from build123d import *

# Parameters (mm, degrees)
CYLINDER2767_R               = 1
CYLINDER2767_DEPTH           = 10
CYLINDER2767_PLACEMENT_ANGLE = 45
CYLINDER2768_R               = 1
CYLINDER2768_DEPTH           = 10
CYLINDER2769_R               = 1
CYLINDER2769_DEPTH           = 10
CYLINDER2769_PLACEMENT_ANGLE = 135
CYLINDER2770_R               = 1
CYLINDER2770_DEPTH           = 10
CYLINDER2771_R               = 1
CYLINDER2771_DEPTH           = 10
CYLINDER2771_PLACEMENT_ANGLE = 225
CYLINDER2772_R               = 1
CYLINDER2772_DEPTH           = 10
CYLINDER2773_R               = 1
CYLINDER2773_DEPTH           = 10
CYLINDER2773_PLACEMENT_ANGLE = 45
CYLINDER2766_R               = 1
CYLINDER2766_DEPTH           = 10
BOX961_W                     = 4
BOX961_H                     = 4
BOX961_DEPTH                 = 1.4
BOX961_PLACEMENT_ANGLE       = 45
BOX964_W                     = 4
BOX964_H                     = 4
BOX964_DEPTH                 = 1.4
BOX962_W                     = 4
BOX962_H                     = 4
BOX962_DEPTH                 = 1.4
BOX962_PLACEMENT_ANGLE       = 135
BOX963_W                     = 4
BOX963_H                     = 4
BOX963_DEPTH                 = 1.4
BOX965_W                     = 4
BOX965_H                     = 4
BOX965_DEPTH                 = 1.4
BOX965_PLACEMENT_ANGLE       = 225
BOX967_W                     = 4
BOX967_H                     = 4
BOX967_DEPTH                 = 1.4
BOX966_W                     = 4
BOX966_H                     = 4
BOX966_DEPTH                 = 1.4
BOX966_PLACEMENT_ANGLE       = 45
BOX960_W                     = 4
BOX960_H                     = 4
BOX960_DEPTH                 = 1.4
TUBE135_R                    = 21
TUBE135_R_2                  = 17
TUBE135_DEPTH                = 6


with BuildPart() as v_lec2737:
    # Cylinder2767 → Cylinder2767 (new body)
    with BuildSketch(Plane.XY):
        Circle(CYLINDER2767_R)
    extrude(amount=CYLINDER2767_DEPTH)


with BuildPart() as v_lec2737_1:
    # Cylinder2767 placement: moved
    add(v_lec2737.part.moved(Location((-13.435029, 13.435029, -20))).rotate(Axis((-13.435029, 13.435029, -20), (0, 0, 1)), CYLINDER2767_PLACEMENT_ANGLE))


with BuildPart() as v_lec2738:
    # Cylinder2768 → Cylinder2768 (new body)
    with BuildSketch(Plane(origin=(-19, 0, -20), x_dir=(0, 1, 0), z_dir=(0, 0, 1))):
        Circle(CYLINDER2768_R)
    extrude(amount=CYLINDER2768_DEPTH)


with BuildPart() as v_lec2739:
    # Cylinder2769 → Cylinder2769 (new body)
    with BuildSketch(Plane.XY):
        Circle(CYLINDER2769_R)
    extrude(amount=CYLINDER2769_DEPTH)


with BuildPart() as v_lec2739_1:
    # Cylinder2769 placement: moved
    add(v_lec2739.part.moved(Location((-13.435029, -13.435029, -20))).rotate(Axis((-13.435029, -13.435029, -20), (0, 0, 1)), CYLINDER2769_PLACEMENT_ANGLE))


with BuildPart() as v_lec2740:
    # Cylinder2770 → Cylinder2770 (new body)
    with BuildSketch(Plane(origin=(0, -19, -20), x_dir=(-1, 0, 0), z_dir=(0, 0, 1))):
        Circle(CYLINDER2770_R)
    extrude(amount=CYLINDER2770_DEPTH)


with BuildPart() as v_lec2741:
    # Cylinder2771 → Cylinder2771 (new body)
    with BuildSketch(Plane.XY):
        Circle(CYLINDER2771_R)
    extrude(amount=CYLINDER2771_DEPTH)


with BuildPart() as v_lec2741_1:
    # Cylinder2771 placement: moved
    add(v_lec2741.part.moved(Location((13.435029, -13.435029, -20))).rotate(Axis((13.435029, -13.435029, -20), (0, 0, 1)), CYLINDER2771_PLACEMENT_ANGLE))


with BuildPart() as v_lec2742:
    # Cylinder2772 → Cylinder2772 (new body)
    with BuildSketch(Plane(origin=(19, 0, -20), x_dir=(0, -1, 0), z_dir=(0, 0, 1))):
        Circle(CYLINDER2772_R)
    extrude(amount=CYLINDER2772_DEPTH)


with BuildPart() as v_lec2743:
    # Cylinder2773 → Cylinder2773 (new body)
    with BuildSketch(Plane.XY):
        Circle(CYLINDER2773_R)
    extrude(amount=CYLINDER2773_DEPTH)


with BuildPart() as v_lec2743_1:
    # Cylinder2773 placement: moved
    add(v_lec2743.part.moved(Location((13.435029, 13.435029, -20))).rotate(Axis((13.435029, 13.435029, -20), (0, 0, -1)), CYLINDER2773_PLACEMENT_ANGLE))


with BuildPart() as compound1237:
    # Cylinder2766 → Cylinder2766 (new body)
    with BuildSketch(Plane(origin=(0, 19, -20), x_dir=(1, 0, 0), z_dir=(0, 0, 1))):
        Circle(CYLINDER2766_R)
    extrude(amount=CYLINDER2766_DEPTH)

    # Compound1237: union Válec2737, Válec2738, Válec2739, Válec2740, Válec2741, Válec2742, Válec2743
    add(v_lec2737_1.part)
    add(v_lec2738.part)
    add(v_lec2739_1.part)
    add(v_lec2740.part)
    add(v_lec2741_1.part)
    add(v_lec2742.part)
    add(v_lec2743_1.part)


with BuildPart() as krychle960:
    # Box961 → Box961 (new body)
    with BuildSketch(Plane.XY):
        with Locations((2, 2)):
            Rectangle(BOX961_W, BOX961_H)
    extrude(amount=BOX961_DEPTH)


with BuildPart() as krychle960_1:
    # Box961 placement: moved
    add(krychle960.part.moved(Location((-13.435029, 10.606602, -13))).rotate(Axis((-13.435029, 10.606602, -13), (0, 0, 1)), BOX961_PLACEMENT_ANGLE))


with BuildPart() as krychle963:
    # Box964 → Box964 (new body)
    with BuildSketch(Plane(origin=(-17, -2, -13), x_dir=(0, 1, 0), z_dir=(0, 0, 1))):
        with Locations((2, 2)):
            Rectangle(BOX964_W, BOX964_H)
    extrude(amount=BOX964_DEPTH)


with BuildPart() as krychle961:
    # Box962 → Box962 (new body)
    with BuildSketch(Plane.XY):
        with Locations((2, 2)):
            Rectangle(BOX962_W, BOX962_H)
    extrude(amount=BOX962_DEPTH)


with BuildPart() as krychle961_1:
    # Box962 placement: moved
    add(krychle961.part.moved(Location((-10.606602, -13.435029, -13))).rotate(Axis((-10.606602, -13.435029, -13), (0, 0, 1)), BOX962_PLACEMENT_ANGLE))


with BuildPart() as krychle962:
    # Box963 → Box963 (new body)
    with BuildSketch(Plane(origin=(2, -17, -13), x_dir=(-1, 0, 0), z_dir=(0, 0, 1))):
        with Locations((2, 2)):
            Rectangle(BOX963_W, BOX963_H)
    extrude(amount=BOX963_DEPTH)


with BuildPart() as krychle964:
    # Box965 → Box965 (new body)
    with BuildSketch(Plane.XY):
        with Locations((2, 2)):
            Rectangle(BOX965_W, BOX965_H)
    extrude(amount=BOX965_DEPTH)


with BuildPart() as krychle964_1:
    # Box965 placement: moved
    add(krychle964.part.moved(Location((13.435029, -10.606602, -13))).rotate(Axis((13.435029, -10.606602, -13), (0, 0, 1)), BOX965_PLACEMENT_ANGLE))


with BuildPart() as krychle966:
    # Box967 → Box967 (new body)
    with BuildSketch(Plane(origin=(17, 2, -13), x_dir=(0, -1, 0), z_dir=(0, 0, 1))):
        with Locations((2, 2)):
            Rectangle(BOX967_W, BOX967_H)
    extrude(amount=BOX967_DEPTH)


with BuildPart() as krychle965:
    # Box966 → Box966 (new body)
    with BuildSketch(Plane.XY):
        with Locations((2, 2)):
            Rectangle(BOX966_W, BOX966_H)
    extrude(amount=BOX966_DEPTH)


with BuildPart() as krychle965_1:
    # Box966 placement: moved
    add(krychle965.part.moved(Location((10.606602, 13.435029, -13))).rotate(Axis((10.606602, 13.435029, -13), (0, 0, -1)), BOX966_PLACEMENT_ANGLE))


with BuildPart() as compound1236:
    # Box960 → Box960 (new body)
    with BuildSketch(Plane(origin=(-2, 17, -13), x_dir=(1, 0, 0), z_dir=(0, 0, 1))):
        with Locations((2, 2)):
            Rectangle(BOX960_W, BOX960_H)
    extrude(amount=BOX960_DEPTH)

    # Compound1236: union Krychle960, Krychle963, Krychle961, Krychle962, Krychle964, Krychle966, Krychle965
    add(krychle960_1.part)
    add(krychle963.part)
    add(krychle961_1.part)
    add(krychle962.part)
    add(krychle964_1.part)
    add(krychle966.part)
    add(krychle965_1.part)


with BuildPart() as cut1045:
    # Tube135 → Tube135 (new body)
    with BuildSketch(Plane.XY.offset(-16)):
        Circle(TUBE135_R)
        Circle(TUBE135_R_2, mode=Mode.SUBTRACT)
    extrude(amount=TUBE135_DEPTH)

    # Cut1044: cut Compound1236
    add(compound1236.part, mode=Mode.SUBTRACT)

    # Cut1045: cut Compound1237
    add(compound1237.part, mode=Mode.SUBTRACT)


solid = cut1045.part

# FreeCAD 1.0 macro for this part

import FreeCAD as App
import Part
import Sketcher

V = App.Vector
Q = App.Units.Quantity

doc = App.newDocument("Part")
body = doc.addObject("PartDesign::Body", "Body")

# Sketch on XY plane
sketch1 = body.newObject("Sketcher::SketchObject", "Sketch")
sketch1.AttachmentSupport = (doc.getObject("XY_Plane"), [""])
sketch1.MapMode = "FlatFace"
sketch1.addGeometry(Part.Circle(V(0, 0, 0), V(0, 0, 1), 1), False)
sketch1.addConstraint(Sketcher.Constraint("Coincident", 0, 3, -1, 1))
sketch1.addConstraint(Sketcher.Constraint("Diameter", 0, Q("2 mm")))
pad1 = body.newObject("PartDesign::Pad", "Pad")
pad1.Profile = sketch1
pad1.Length = 10
body2 = doc.addObject("PartDesign::Body", "Body001")
doc.recompute()

body.Placement = App.Placement(V(-13.435029, 13.435029, -20), App.Rotation(V(0, 0, 1), 45))
boolean = body2.newObject("PartDesign::Boolean", "Boolean")
boolean.Type = "Fuse"
boolean.addObjects([body])
body3 = doc.addObject("PartDesign::Body", "Body002")

# Sketch on XY plane
sketch2 = body3.newObject("Sketcher::SketchObject", "Sketch001")
sketch2.AttachmentSupport = (doc.getObject("XY_Plane002"), [""])
sketch2.MapMode = "FlatFace"
sketch2.AttachmentOffset = App.Placement(V(0, 0, -20), App.Rotation())
sketch2.addGeometry(Part.Circle(V(-19, 0, 0), V(0, 0, 1), 1), False)
sketch2.addConstraint(Sketcher.Constraint("PointOnObject", 0, 3, -1))
sketch2.addConstraint(Sketcher.Constraint("Diameter", 0, Q("2 mm")))
sketch2.addConstraint(Sketcher.Constraint("DistanceX", 0, 3, -1, 1, Q("19 mm")))
pad2 = body3.newObject("PartDesign::Pad", "Pad001")
pad2.Profile = sketch2
pad2.Length = 10
body4 = doc.addObject("PartDesign::Body", "Body003")

# Sketch on XY plane
sketch3 = body4.newObject("Sketcher::SketchObject", "Sketch002")
sketch3.AttachmentSupport = (doc.getObject("XY_Plane003"), [""])
sketch3.MapMode = "FlatFace"
sketch3.addGeometry(Part.Circle(V(0, 0, 0), V(0, 0, 1), 1), False)
sketch3.addConstraint(Sketcher.Constraint("Coincident", 0, 3, -1, 1))
sketch3.addConstraint(Sketcher.Constraint("Diameter", 0, Q("2 mm")))
pad3 = body4.newObject("PartDesign::Pad", "Pad002")
pad3.Profile = sketch3
pad3.Length = 10
body5 = doc.addObject("PartDesign::Body", "Body004")
doc.recompute()

body4.Placement = App.Placement(V(-13.435029, -13.435029, -20), App.Rotation(V(0, 0, 1), 135))
boolean2 = body5.newObject("PartDesign::Boolean", "Boolean001")
boolean2.Type = "Fuse"
boolean2.addObjects([body4])
body6 = doc.addObject("PartDesign::Body", "Body005")

# Sketch on XY plane
sketch4 = body6.newObject("Sketcher::SketchObject", "Sketch003")
sketch4.AttachmentSupport = (doc.getObject("XY_Plane005"), [""])
sketch4.MapMode = "FlatFace"
sketch4.AttachmentOffset = App.Placement(V(0, 0, -20), App.Rotation())
sketch4.addGeometry(Part.Circle(V(0, -19, 0), V(0, 0, 1), 1), False)
sketch4.addConstraint(Sketcher.Constraint("PointOnObject", 0, 3, -2))
sketch4.addConstraint(Sketcher.Constraint("Diameter", 0, Q("2 mm")))
sketch4.addConstraint(Sketcher.Constraint("DistanceY", 0, 3, -1, 1, Q("19 mm")))
pad4 = body6.newObject("PartDesign::Pad", "Pad003")
pad4.Profile = sketch4
pad4.Length = 10
body7 = doc.addObject("PartDesign::Body", "Body006")

# Sketch on XY plane
sketch5 = body7.newObject("Sketcher::SketchObject", "Sketch004")
sketch5.AttachmentSupport = (doc.getObject("XY_Plane006"), [""])
sketch5.MapMode = "FlatFace"
sketch5.addGeometry(Part.Circle(V(0, 0, 0), V(0, 0, 1), 1), False)
sketch5.addConstraint(Sketcher.Constraint("Coincident", 0, 3, -1, 1))
sketch5.addConstraint(Sketcher.Constraint("Diameter", 0, Q("2 mm")))
pad5 = body7.newObject("PartDesign::Pad", "Pad004")
pad5.Profile = sketch5
pad5.Length = 10
body8 = doc.addObject("PartDesign::Body", "Body007")
doc.recompute()

body7.Placement = App.Placement(V(13.435029, -13.435029, -20), App.Rotation(V(0, 0, 1), 225))
boolean3 = body8.newObject("PartDesign::Boolean", "Boolean002")
boolean3.Type = "Fuse"
boolean3.addObjects([body7])
body9 = doc.addObject("PartDesign::Body", "Body008")

# Sketch on XY plane
sketch6 = body9.newObject("Sketcher::SketchObject", "Sketch005")
sketch6.AttachmentSupport = (doc.getObject("XY_Plane008"), [""])
sketch6.MapMode = "FlatFace"
sketch6.AttachmentOffset = App.Placement(V(0, 0, -20), App.Rotation())
sketch6.addGeometry(Part.Circle(V(19, 0, 0), V(0, 0, 1), 1), False)
sketch6.addConstraint(Sketcher.Constraint("PointOnObject", 0, 3, -1))
sketch6.addConstraint(Sketcher.Constraint("Diameter", 0, Q("2 mm")))
sketch6.addConstraint(Sketcher.Constraint("DistanceX", -1, 1, 0, 3, Q("19 mm")))
pad6 = body9.newObject("PartDesign::Pad", "Pad005")
pad6.Profile = sketch6
pad6.Length = 10
body10 = doc.addObject("PartDesign::Body", "Body009")

# Sketch on XY plane
sketch7 = body10.newObject("Sketcher::SketchObject", "Sketch006")
sketch7.AttachmentSupport = (doc.getObject("XY_Plane009"), [""])
sketch7.MapMode = "FlatFace"
sketch7.addGeometry(Part.Circle(V(0, 0, 0), V(0, 0, 1), 1), False)
sketch7.addConstraint(Sketcher.Constraint("Coincident", 0, 3, -1, 1))
sketch7.addConstraint(Sketcher.Constraint("Diameter", 0, Q("2 mm")))
pad7 = body10.newObject("PartDesign::Pad", "Pad006")
pad7.Profile = sketch7
pad7.Length = 10
body11 = doc.addObject("PartDesign::Body", "Body010")
doc.recompute()

body10.Placement = App.Placement(V(13.435029, 13.435029, -20), App.Rotation(V(0, 0, -1), 45))
boolean4 = body11.newObject("PartDesign::Boolean", "Boolean003")
boolean4.Type = "Fuse"
boolean4.addObjects([body10])
body12 = doc.addObject("PartDesign::Body", "Body011")
body12.AllowCompound = True

# Sketch on XY plane
sketch8 = body12.newObject("Sketcher::SketchObject", "Sketch007")
sketch8.AttachmentSupport = (doc.getObject("XY_Plane011"), [""])
sketch8.MapMode = "FlatFace"
sketch8.AttachmentOffset = App.Placement(V(0, 0, -20), App.Rotation())
sketch8.addGeometry(Part.Circle(V(0, 19, 0), V(0, 0, 1), 1), False)
sketch8.addConstraint(Sketcher.Constraint("PointOnObject", 0, 3, -2))
sketch8.addConstraint(Sketcher.Constraint("Diameter", 0, Q("2 mm")))
sketch8.addConstraint(Sketcher.Constraint("DistanceY", -1, 1, 0, 3, Q("19 mm")))
pad8 = body12.newObject("PartDesign::Pad", "Pad007")
pad8.Profile = sketch8
pad8.Length = 10
doc.recompute()

boolean5 = body12.newObject("PartDesign::Boolean", "Boolean004")
boolean5.Type = "Fuse"
boolean5.addObjects([body2])
doc.recompute()

boolean6 = body12.newObject("PartDesign::Boolean", "Boolean005")
boolean6.Type = "Fuse"
boolean6.addObjects([body3])
doc.recompute()

boolean7 = body12.newObject("PartDesign::Boolean", "Boolean006")
boolean7.Type = "Fuse"
boolean7.addObjects([body5])
doc.recompute()

boolean8 = body12.newObject("PartDesign::Boolean", "Boolean007")
boolean8.Type = "Fuse"
boolean8.addObjects([body6])
doc.recompute()

boolean9 = body12.newObject("PartDesign::Boolean", "Boolean008")
boolean9.Type = "Fuse"
boolean9.addObjects([body8])
doc.recompute()

boolean10 = body12.newObject("PartDesign::Boolean", "Boolean009")
boolean10.Type = "Fuse"
boolean10.addObjects([body9])
doc.recompute()

boolean11 = body12.newObject("PartDesign::Boolean", "Boolean010")
boolean11.Type = "Fuse"
boolean11.addObjects([body11])
body13 = doc.addObject("PartDesign::Body", "Body012")

# Sketch on XY plane
sketch9 = body13.newObject("Sketcher::SketchObject", "Sketch008")
sketch9.AttachmentSupport = (doc.getObject("XY_Plane012"), [""])
sketch9.MapMode = "FlatFace"
sketch9.addGeometry(Part.LineSegment(V(0, 4, 0), V(0, 0, 0)), False)
sketch9.addGeometry(Part.LineSegment(V(0, 0, 0), V(4, 0, 0)), False)
sketch9.addGeometry(Part.LineSegment(V(4, 0, 0), V(4, 4, 0)), False)
sketch9.addGeometry(Part.LineSegment(V(4, 4, 0), V(0, 4, 0)), False)
sketch9.addConstraint(Sketcher.Constraint("Coincident", 0, 2, 1, 1))
sketch9.addConstraint(Sketcher.Constraint("Coincident", 1, 2, 2, 1))
sketch9.addConstraint(Sketcher.Constraint("Coincident", 2, 2, 3, 1))
sketch9.addConstraint(Sketcher.Constraint("Coincident", 3, 2, 0, 1))
sketch9.addConstraint(Sketcher.Constraint("Vertical", 0))
sketch9.addConstraint(Sketcher.Constraint("Horizontal", 1))
sketch9.addConstraint(Sketcher.Constraint("Vertical", 2))
sketch9.addConstraint(Sketcher.Constraint("Horizontal", 3))
sketch9.addConstraint(Sketcher.Constraint("Coincident", 0, 2, -1, 1))
sketch9.addConstraint(Sketcher.Constraint("Equal", 3, 0))
sketch9.addConstraint(Sketcher.Constraint("DistanceX", 1, 1, 1, 2, Q("4 mm")))
pad9 = body13.newObject("PartDesign::Pad", "Pad008")
pad9.Profile = sketch9
pad9.Length = 1.4
body14 = doc.addObject("PartDesign::Body", "Body013")
doc.recompute()

body13.Placement = App.Placement(V(-13.435029, 10.606602, -13), App.Rotation(V(0, 0, 1), 45))
boolean12 = body14.newObject("PartDesign::Boolean", "Boolean011")
boolean12.Type = "Fuse"
boolean12.addObjects([body13])
body15 = doc.addObject("PartDesign::Body", "Body014")

# Sketch on XY plane
sketch10 = body15.newObject("Sketcher::SketchObject", "Sketch009")
sketch10.AttachmentSupport = (doc.getObject("XY_Plane014"), [""])
sketch10.MapMode = "FlatFace"
sketch10.AttachmentOffset = App.Placement(V(0, 0, -13), App.Rotation())
sketch10.addGeometry(Part.LineSegment(V(-21, -2, 0), V(-17, -2, 0)), False)
sketch10.addGeometry(Part.LineSegment(V(-17, -2, 0), V(-17, 2, 0)), False)
sketch10.addGeometry(Part.LineSegment(V(-17, 2, 0), V(-21, 2, 0)), False)
sketch10.addGeometry(Part.LineSegment(V(-21, 2, 0), V(-21, -2, 0)), False)
sketch10.addConstraint(Sketcher.Constraint("Coincident", 0, 2, 1, 1))
sketch10.addConstraint(Sketcher.Constraint("Coincident", 1, 2, 2, 1))
sketch10.addConstraint(Sketcher.Constraint("Coincident", 2, 2, 3, 1))
sketch10.addConstraint(Sketcher.Constraint("Coincident", 3, 2, 0, 1))
sketch10.addConstraint(Sketcher.Constraint("Horizontal", 0))
sketch10.addConstraint(Sketcher.Constraint("Vertical", 1))
sketch10.addConstraint(Sketcher.Constraint("Horizontal", 2))
sketch10.addConstraint(Sketcher.Constraint("Vertical", 3))
sketch10.addConstraint(Sketcher.Constraint("Equal", 2, 1))
sketch10.addConstraint(Sketcher.Constraint("DistanceX", 0, 1, 0, 2, Q("4 mm")))
sketch10.addConstraint(Sketcher.Constraint("DistanceX", 0, 2, -1, 1, Q("17 mm")))
sketch10.addConstraint(Sketcher.Constraint("DistanceY", 0, 2, -1, 1, Q("2 mm")))
pad10 = body15.newObject("PartDesign::Pad", "Pad009")
pad10.Profile = sketch10
pad10.Length = 1.4
body16 = doc.addObject("PartDesign::Body", "Body015")

# Sketch on XY plane
sketch11 = body16.newObject("Sketcher::SketchObject", "Sketch010")
sketch11.AttachmentSupport = (doc.getObject("XY_Plane015"), [""])
sketch11.MapMode = "FlatFace"
sketch11.addGeometry(Part.LineSegment(V(0, 4, 0), V(0, 0, 0)), False)
sketch11.addGeometry(Part.LineSegment(V(0, 0, 0), V(4, 0, 0)), False)
sketch11.addGeometry(Part.LineSegment(V(4, 0, 0), V(4, 4, 0)), False)
sketch11.addGeometry(Part.LineSegment(V(4, 4, 0), V(0, 4, 0)), False)
sketch11.addConstraint(Sketcher.Constraint("Coincident", 0, 2, 1, 1))
sketch11.addConstraint(Sketcher.Constraint("Coincident", 1, 2, 2, 1))
sketch11.addConstraint(Sketcher.Constraint("Coincident", 2, 2, 3, 1))
sketch11.addConstraint(Sketcher.Constraint("Coincident", 3, 2, 0, 1))
sketch11.addConstraint(Sketcher.Constraint("Vertical", 0))
sketch11.addConstraint(Sketcher.Constraint("Horizontal", 1))
sketch11.addConstraint(Sketcher.Constraint("Vertical", 2))
sketch11.addConstraint(Sketcher.Constraint("Horizontal", 3))
sketch11.addConstraint(Sketcher.Constraint("Coincident", 0, 2, -1, 1))
sketch11.addConstraint(Sketcher.Constraint("Equal", 3, 0))
sketch11.addConstraint(Sketcher.Constraint("DistanceX", 1, 1, 1, 2, Q("4 mm")))
pad11 = body16.newObject("PartDesign::Pad", "Pad010")
pad11.Profile = sketch11
pad11.Length = 1.4
body17 = doc.addObject("PartDesign::Body", "Body016")
doc.recompute()

body16.Placement = App.Placement(V(-10.606602, -13.435029, -13), App.Rotation(V(0, 0, 1), 135))
boolean13 = body17.newObject("PartDesign::Boolean", "Boolean012")
boolean13.Type = "Fuse"
boolean13.addObjects([body16])
body18 = doc.addObject("PartDesign::Body", "Body017")

# Sketch on XY plane
sketch12 = body18.newObject("Sketcher::SketchObject", "Sketch011")
sketch12.AttachmentSupport = (doc.getObject("XY_Plane017"), [""])
sketch12.MapMode = "FlatFace"
sketch12.AttachmentOffset = App.Placement(V(0, 0, -13), App.Rotation())
sketch12.addGeometry(Part.LineSegment(V(2, -21, 0), V(2, -17, 0)), False)
sketch12.addGeometry(Part.LineSegment(V(2, -17, 0), V(-2, -17, 0)), False)
sketch12.addGeometry(Part.LineSegment(V(-2, -17, 0), V(-2, -21, 0)), False)
sketch12.addGeometry(Part.LineSegment(V(-2, -21, 0), V(2, -21, 0)), False)
sketch12.addConstraint(Sketcher.Constraint("Coincident", 0, 2, 1, 1))
sketch12.addConstraint(Sketcher.Constraint("Coincident", 1, 2, 2, 1))
sketch12.addConstraint(Sketcher.Constraint("Coincident", 2, 2, 3, 1))
sketch12.addConstraint(Sketcher.Constraint("Coincident", 3, 2, 0, 1))
sketch12.addConstraint(Sketcher.Constraint("Vertical", 0))
sketch12.addConstraint(Sketcher.Constraint("Horizontal", 1))
sketch12.addConstraint(Sketcher.Constraint("Vertical", 2))
sketch12.addConstraint(Sketcher.Constraint("Horizontal", 3))
sketch12.addConstraint(Sketcher.Constraint("Equal", 3, 0))
sketch12.addConstraint(Sketcher.Constraint("DistanceX", 1, 2, 1, 1, Q("4 mm")))
sketch12.addConstraint(Sketcher.Constraint("DistanceX", -1, 1, 0, 2, Q("2 mm")))
sketch12.addConstraint(Sketcher.Constraint("DistanceY", 0, 2, -1, 1, Q("17 mm")))
pad12 = body18.newObject("PartDesign::Pad", "Pad011")
pad12.Profile = sketch12
pad12.Length = 1.4
body19 = doc.addObject("PartDesign::Body", "Body018")

# Sketch on XY plane
sketch13 = body19.newObject("Sketcher::SketchObject", "Sketch012")
sketch13.AttachmentSupport = (doc.getObject("XY_Plane018"), [""])
sketch13.MapMode = "FlatFace"
sketch13.addGeometry(Part.LineSegment(V(0, 4, 0), V(0, 0, 0)), False)
sketch13.addGeometry(Part.LineSegment(V(0, 0, 0), V(4, 0, 0)), False)
sketch13.addGeometry(Part.LineSegment(V(4, 0, 0), V(4, 4, 0)), False)
sketch13.addGeometry(Part.LineSegment(V(4, 4, 0), V(0, 4, 0)), False)
sketch13.addConstraint(Sketcher.Constraint("Coincident", 0, 2, 1, 1))
sketch13.addConstraint(Sketcher.Constraint("Coincident", 1, 2, 2, 1))
sketch13.addConstraint(Sketcher.Constraint("Coincident", 2, 2, 3, 1))
sketch13.addConstraint(Sketcher.Constraint("Coincident", 3, 2, 0, 1))
sketch13.addConstraint(Sketcher.Constraint("Vertical", 0))
sketch13.addConstraint(Sketcher.Constraint("Horizontal", 1))
sketch13.addConstraint(Sketcher.Constraint("Vertical", 2))
sketch13.addConstraint(Sketcher.Constraint("Horizontal", 3))
sketch13.addConstraint(Sketcher.Constraint("Coincident", 0, 2, -1, 1))
sketch13.addConstraint(Sketcher.Constraint("Equal", 3, 0))
sketch13.addConstraint(Sketcher.Constraint("DistanceX", 1, 1, 1, 2, Q("4 mm")))
pad13 = body19.newObject("PartDesign::Pad", "Pad012")
pad13.Profile = sketch13
pad13.Length = 1.4
body20 = doc.addObject("PartDesign::Body", "Body019")
doc.recompute()

body19.Placement = App.Placement(V(13.435029, -10.606602, -13), App.Rotation(V(0, 0, 1), 225))
boolean14 = body20.newObject("PartDesign::Boolean", "Boolean013")
boolean14.Type = "Fuse"
boolean14.addObjects([body19])
body21 = doc.addObject("PartDesign::Body", "Body020")

# Sketch on XY plane
sketch14 = body21.newObject("Sketcher::SketchObject", "Sketch013")
sketch14.AttachmentSupport = (doc.getObject("XY_Plane020"), [""])
sketch14.MapMode = "FlatFace"
sketch14.AttachmentOffset = App.Placement(V(0, 0, -13), App.Rotation())
sketch14.addGeometry(Part.LineSegment(V(21, 2, 0), V(17, 2, 0)), False)
sketch14.addGeometry(Part.LineSegment(V(17, 2, 0), V(17, -2, 0)), False)
sketch14.addGeometry(Part.LineSegment(V(17, -2, 0), V(21, -2, 0)), False)
sketch14.addGeometry(Part.LineSegment(V(21, -2, 0), V(21, 2, 0)), False)
sketch14.addConstraint(Sketcher.Constraint("Coincident", 0, 2, 1, 1))
sketch14.addConstraint(Sketcher.Constraint("Coincident", 1, 2, 2, 1))
sketch14.addConstraint(Sketcher.Constraint("Coincident", 2, 2, 3, 1))
sketch14.addConstraint(Sketcher.Constraint("Coincident", 3, 2, 0, 1))
sketch14.addConstraint(Sketcher.Constraint("Horizontal", 0))
sketch14.addConstraint(Sketcher.Constraint("Vertical", 1))
sketch14.addConstraint(Sketcher.Constraint("Horizontal", 2))
sketch14.addConstraint(Sketcher.Constraint("Vertical", 3))
sketch14.addConstraint(Sketcher.Constraint("Equal", 2, 1))
sketch14.addConstraint(Sketcher.Constraint("DistanceX", 0, 2, 0, 1, Q("4 mm")))
sketch14.addConstraint(Sketcher.Constraint("DistanceX", -1, 1, 0, 2, Q("17 mm")))
sketch14.addConstraint(Sketcher.Constraint("DistanceY", -1, 1, 0, 2, Q("2 mm")))
pad14 = body21.newObject("PartDesign::Pad", "Pad013")
pad14.Profile = sketch14
pad14.Length = 1.4
body22 = doc.addObject("PartDesign::Body", "Body021")

# Sketch on XY plane
sketch15 = body22.newObject("Sketcher::SketchObject", "Sketch014")
sketch15.AttachmentSupport = (doc.getObject("XY_Plane021"), [""])
sketch15.MapMode = "FlatFace"
sketch15.addGeometry(Part.LineSegment(V(0, 4, 0), V(0, 0, 0)), False)
sketch15.addGeometry(Part.LineSegment(V(0, 0, 0), V(4, 0, 0)), False)
sketch15.addGeometry(Part.LineSegment(V(4, 0, 0), V(4, 4, 0)), False)
sketch15.addGeometry(Part.LineSegment(V(4, 4, 0), V(0, 4, 0)), False)
sketch15.addConstraint(Sketcher.Constraint("Coincident", 0, 2, 1, 1))
sketch15.addConstraint(Sketcher.Constraint("Coincident", 1, 2, 2, 1))
sketch15.addConstraint(Sketcher.Constraint("Coincident", 2, 2, 3, 1))
sketch15.addConstraint(Sketcher.Constraint("Coincident", 3, 2, 0, 1))
sketch15.addConstraint(Sketcher.Constraint("Vertical", 0))
sketch15.addConstraint(Sketcher.Constraint("Horizontal", 1))
sketch15.addConstraint(Sketcher.Constraint("Vertical", 2))
sketch15.addConstraint(Sketcher.Constraint("Horizontal", 3))
sketch15.addConstraint(Sketcher.Constraint("Coincident", 0, 2, -1, 1))
sketch15.addConstraint(Sketcher.Constraint("Equal", 3, 0))
sketch15.addConstraint(Sketcher.Constraint("DistanceX", 1, 1, 1, 2, Q("4 mm")))
pad15 = body22.newObject("PartDesign::Pad", "Pad014")
pad15.Profile = sketch15
pad15.Length = 1.4
body23 = doc.addObject("PartDesign::Body", "Body022")
doc.recompute()

body22.Placement = App.Placement(V(10.606602, 13.435029, -13), App.Rotation(V(0, 0, -1), 45))
boolean15 = body23.newObject("PartDesign::Boolean", "Boolean014")
boolean15.Type = "Fuse"
boolean15.addObjects([body22])
body24 = doc.addObject("PartDesign::Body", "Body023")
body24.AllowCompound = True

# Sketch on XY plane
sketch16 = body24.newObject("Sketcher::SketchObject", "Sketch015")
sketch16.AttachmentSupport = (doc.getObject("XY_Plane023"), [""])
sketch16.MapMode = "FlatFace"
sketch16.AttachmentOffset = App.Placement(V(0, 0, -13), App.Rotation())
sketch16.addGeometry(Part.LineSegment(V(-2, 21, 0), V(-2, 17, 0)), False)
sketch16.addGeometry(Part.LineSegment(V(-2, 17, 0), V(2, 17, 0)), False)
sketch16.addGeometry(Part.LineSegment(V(2, 17, 0), V(2, 21, 0)), False)
sketch16.addGeometry(Part.LineSegment(V(2, 21, 0), V(-2, 21, 0)), False)
sketch16.addConstraint(Sketcher.Constraint("Coincident", 0, 2, 1, 1))
sketch16.addConstraint(Sketcher.Constraint("Coincident", 1, 2, 2, 1))
sketch16.addConstraint(Sketcher.Constraint("Coincident", 2, 2, 3, 1))
sketch16.addConstraint(Sketcher.Constraint("Coincident", 3, 2, 0, 1))
sketch16.addConstraint(Sketcher.Constraint("Vertical", 0))
sketch16.addConstraint(Sketcher.Constraint("Horizontal", 1))
sketch16.addConstraint(Sketcher.Constraint("Vertical", 2))
sketch16.addConstraint(Sketcher.Constraint("Horizontal", 3))
sketch16.addConstraint(Sketcher.Constraint("Equal", 3, 0))
sketch16.addConstraint(Sketcher.Constraint("DistanceX", 1, 1, 1, 2, Q("4 mm")))
sketch16.addConstraint(Sketcher.Constraint("DistanceX", 0, 2, -1, 1, Q("2 mm")))
sketch16.addConstraint(Sketcher.Constraint("DistanceY", -1, 1, 0, 2, Q("17 mm")))
pad16 = body24.newObject("PartDesign::Pad", "Pad015")
pad16.Profile = sketch16
pad16.Length = 1.4
doc.recompute()

boolean16 = body24.newObject("PartDesign::Boolean", "Boolean015")
boolean16.Type = "Fuse"
boolean16.addObjects([body14])
doc.recompute()

boolean17 = body24.newObject("PartDesign::Boolean", "Boolean016")
boolean17.Type = "Fuse"
boolean17.addObjects([body15])
doc.recompute()

boolean18 = body24.newObject("PartDesign::Boolean", "Boolean017")
boolean18.Type = "Fuse"
boolean18.addObjects([body17])
doc.recompute()

boolean19 = body24.newObject("PartDesign::Boolean", "Boolean018")
boolean19.Type = "Fuse"
boolean19.addObjects([body18])
doc.recompute()

boolean20 = body24.newObject("PartDesign::Boolean", "Boolean019")
boolean20.Type = "Fuse"
boolean20.addObjects([body20])
doc.recompute()

boolean21 = body24.newObject("PartDesign::Boolean", "Boolean020")
boolean21.Type = "Fuse"
boolean21.addObjects([body21])
doc.recompute()

boolean22 = body24.newObject("PartDesign::Boolean", "Boolean021")
boolean22.Type = "Fuse"
boolean22.addObjects([body23])
body25 = doc.addObject("PartDesign::Body", "Body024")

# Sketch on XY plane
sketch17 = body25.newObject("Sketcher::SketchObject", "Sketch016")
sketch17.AttachmentSupport = (doc.getObject("XY_Plane024"), [""])
sketch17.MapMode = "FlatFace"
sketch17.AttachmentOffset = App.Placement(V(0, 0, -16), App.Rotation())
sketch17.addGeometry(Part.Circle(V(0, 0, 0), V(0, 0, 1), 21), False)
sketch17.addGeometry(Part.Circle(V(0, 0, 0), V(0, 0, 1), 17), False)
sketch17.addConstraint(Sketcher.Constraint("Coincident", 0, 3, -1, 1))
sketch17.addConstraint(Sketcher.Constraint("Coincident", 1, 3, -1, 1))
sketch17.addConstraint(Sketcher.Constraint("Diameter", 0, Q("42 mm")))
sketch17.addConstraint(Sketcher.Constraint("Diameter", 1, Q("34 mm")))
pad17 = body25.newObject("PartDesign::Pad", "Pad016")
pad17.Profile = sketch17
pad17.Length = 6
doc.recompute()

boolean23 = body25.newObject("PartDesign::Boolean", "Boolean022")
boolean23.Type = "Cut"
boolean23.addObjects([body24])
doc.recompute()

boolean24 = body25.newObject("PartDesign::Boolean", "Boolean023")
boolean24.Type = "Cut"
boolean24.addObjects([body12])

doc.recompute()
